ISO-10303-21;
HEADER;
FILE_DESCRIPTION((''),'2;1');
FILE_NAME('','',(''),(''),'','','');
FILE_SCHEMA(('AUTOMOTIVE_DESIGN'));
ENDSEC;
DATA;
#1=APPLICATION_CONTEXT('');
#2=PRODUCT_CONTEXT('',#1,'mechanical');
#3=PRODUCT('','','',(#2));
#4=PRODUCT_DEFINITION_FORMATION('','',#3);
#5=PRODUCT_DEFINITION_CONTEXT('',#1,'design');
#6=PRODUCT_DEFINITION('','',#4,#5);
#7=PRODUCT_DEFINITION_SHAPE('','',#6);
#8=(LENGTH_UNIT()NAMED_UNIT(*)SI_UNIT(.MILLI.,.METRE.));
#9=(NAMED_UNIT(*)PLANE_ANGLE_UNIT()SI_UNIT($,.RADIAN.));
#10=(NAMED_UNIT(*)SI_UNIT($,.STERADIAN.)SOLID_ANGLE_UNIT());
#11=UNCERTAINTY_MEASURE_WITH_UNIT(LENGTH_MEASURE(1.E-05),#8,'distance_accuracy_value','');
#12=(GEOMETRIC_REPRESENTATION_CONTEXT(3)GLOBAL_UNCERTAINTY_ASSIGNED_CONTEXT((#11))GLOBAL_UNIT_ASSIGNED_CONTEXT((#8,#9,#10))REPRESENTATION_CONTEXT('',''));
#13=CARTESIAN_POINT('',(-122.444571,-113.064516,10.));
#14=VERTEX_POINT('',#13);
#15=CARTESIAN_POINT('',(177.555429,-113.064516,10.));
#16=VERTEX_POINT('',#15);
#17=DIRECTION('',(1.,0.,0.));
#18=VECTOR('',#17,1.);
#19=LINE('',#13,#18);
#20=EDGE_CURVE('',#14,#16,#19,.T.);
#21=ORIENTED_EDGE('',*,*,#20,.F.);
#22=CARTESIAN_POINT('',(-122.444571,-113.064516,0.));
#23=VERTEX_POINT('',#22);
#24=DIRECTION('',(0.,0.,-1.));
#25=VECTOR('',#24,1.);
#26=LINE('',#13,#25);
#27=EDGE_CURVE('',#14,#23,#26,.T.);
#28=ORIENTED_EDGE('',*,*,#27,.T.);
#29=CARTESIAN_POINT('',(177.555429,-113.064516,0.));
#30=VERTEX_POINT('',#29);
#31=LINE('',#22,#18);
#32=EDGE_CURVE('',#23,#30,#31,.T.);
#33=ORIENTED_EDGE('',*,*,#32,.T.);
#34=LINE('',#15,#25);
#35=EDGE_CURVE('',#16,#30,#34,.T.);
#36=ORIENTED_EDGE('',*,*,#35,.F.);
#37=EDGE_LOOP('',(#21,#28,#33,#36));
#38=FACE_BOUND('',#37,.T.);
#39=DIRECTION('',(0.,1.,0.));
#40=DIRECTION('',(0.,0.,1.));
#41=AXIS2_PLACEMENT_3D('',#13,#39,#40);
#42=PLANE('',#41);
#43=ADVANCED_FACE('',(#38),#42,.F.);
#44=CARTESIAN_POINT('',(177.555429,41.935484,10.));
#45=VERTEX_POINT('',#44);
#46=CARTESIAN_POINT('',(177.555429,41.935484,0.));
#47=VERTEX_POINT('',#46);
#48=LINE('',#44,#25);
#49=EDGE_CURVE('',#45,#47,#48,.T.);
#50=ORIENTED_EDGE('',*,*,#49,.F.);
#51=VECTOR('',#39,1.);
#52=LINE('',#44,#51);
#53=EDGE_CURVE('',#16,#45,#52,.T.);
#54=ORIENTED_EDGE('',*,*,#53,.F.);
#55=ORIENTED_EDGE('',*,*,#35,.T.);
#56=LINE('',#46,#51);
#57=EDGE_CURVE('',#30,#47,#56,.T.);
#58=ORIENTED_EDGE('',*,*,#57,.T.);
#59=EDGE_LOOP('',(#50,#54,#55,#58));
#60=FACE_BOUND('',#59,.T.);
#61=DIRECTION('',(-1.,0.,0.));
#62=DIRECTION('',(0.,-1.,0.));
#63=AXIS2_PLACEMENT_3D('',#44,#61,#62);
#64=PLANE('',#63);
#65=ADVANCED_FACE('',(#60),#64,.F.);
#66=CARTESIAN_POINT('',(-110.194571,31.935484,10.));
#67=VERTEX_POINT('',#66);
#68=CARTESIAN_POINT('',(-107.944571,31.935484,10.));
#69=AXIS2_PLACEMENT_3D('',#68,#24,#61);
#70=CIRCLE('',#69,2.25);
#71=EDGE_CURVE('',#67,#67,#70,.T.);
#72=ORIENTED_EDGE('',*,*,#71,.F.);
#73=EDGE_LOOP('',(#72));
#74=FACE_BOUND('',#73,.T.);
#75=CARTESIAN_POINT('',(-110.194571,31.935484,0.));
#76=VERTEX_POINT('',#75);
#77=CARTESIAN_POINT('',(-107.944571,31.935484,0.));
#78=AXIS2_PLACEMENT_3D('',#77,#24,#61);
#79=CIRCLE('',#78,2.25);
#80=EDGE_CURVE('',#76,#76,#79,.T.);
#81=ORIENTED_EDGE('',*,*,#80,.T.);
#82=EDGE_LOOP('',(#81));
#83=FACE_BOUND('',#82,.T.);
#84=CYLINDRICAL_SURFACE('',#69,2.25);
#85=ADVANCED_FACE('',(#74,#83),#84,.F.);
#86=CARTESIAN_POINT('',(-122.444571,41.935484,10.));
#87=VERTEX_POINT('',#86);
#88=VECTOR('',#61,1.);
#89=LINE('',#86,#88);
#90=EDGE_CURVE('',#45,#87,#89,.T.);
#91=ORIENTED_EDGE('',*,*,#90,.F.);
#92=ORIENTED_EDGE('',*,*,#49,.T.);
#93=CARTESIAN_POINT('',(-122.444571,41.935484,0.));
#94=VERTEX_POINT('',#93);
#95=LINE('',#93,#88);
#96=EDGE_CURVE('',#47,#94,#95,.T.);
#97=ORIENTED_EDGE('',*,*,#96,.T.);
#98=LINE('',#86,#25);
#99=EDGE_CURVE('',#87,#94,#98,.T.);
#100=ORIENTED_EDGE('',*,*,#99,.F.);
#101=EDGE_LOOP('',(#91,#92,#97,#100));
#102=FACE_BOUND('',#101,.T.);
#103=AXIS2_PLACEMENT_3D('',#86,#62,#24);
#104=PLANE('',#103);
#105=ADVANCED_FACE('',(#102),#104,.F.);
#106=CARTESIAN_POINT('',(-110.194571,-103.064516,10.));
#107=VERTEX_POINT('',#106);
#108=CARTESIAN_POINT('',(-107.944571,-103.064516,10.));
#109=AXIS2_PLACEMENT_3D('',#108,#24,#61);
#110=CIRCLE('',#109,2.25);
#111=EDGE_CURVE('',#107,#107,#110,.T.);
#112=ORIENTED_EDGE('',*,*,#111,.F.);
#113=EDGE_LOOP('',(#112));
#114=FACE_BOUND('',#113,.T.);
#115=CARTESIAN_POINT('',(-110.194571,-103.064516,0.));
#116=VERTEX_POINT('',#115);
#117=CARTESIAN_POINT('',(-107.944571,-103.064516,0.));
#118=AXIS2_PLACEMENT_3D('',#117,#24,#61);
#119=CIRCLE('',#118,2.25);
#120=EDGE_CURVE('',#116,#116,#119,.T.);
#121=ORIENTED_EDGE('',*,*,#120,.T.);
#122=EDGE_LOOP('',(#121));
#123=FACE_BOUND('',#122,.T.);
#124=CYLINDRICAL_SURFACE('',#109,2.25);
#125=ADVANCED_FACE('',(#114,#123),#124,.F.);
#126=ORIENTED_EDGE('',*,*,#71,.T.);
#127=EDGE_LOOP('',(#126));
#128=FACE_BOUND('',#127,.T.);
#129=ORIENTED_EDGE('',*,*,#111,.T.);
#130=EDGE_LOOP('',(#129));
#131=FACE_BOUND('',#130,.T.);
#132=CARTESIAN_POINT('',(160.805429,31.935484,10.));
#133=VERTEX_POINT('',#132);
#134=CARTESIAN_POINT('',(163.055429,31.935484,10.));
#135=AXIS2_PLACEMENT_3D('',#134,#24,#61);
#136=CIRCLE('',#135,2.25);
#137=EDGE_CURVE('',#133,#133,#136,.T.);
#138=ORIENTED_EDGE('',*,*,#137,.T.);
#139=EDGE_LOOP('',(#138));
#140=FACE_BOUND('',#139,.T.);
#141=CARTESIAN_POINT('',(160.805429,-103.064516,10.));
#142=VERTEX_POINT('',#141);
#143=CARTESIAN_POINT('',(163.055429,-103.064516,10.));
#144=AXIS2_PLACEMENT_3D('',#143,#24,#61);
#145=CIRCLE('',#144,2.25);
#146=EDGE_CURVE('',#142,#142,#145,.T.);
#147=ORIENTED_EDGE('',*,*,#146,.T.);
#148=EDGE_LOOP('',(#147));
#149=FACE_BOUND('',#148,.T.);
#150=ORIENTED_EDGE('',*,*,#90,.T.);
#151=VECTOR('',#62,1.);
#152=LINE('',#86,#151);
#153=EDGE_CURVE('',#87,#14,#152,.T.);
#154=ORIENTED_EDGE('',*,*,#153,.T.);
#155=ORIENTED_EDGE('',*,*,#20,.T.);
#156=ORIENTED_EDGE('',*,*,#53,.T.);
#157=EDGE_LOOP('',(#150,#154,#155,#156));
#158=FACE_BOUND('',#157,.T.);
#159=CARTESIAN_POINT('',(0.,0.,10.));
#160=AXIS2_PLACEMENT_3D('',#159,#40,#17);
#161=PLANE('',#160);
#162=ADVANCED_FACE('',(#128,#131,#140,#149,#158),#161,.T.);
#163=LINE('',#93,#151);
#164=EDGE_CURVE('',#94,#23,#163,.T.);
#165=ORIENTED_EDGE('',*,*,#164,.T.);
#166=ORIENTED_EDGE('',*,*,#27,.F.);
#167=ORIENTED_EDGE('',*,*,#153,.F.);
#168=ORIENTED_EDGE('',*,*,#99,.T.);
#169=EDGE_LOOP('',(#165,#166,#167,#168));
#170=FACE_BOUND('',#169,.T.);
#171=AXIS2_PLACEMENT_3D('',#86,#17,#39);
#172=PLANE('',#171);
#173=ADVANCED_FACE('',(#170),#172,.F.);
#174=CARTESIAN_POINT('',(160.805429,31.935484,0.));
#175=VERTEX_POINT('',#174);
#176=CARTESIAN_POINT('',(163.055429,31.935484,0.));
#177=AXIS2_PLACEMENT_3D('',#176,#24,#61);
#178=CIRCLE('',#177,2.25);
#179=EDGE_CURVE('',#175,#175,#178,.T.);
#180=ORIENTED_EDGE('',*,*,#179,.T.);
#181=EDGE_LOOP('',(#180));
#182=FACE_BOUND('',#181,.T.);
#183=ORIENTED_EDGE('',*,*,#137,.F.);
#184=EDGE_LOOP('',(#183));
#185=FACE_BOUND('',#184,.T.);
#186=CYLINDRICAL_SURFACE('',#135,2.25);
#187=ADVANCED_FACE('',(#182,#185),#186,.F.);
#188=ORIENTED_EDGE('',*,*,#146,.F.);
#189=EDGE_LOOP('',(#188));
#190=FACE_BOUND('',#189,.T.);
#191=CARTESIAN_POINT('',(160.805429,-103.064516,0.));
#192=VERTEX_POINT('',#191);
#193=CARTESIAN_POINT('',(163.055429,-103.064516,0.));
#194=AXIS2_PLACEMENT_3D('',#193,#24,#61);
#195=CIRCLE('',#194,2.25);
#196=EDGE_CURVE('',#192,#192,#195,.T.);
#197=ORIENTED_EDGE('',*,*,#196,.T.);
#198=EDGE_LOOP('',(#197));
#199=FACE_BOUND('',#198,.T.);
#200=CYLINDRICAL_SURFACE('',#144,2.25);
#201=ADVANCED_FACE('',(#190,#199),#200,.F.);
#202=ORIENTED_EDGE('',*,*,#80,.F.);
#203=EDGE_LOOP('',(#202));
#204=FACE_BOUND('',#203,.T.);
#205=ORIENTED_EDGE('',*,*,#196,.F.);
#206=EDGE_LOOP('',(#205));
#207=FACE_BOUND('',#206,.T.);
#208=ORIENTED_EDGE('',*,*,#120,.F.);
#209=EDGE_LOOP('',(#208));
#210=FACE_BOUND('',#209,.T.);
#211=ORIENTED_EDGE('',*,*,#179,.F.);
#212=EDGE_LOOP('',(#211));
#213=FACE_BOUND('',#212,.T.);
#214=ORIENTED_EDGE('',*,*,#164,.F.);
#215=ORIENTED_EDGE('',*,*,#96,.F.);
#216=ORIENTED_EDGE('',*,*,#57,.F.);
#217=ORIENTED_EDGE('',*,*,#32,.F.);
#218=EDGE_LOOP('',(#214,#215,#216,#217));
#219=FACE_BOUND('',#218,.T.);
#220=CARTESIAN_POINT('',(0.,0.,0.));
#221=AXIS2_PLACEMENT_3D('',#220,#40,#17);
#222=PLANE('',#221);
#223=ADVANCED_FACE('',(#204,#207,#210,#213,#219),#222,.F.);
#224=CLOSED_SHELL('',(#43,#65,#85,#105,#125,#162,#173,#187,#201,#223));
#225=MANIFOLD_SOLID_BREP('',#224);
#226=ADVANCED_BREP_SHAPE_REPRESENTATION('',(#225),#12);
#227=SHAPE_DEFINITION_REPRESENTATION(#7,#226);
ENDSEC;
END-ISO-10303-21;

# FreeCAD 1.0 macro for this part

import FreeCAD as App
import Part
import Sketcher


def add_polygon(sketch, points):
    """Adds a closed chain of lines whose ends are joined by coincident constraints."""
    first, n = sketch.GeometryCount, len(points)
    for a, b in zip(points, points[1:] + points[:1]):
        sketch.addGeometry(Part.LineSegment(App.Vector(*a, 0), App.Vector(*b, 0)), False)
    for i in range(n):
        sketch.addConstraint(Sketcher.Constraint("Coincident", first + i, 2, first + (i + 1) % n, 1))

doc = App.newDocument("Part")
params = doc.addObject("Spreadsheet::Sheet", "Params")
for row, (alias, value) in enumerate([
    ("sketch1_width", "300 mm"),
    ("sketch1_height", "155 mm"),
    ("pad1_length", "10 mm"),
    ("sketch2_diameter", "4.5 mm"),
    ("pocket1_length", "10 mm"),
], start=1):
    params.set(f"A{row}", alias)
    params.set(f"B{row}", "=" + value)
    params.setAlias(f"B{row}", alias)

body = doc.addObject("PartDesign::Body", "Body")

# Sketch on XY plane
sketch1 = body.newObject("Sketcher::SketchObject", "Sketch")
sketch1.AttachmentSupport = (doc.getObject("XY_Plane"), [""])
sketch1.MapMode = "FlatFace"
add_polygon(sketch1, [(-122.444571, 41.935484), (-122.444571, -113.064516), (177.555429, -113.064516), (177.555429, 41.935484)])  # lines 0-3
sketch1.addConstraint([
    Sketcher.Constraint("Vertical", 0),
    Sketcher.Constraint("Horizontal", 1),
    Sketcher.Constraint("Vertical", 2),
    Sketcher.Constraint("Horizontal", 3),
    Sketcher.Constraint("DistanceX", 1, 1, 1, 2, 300.0),
    Sketcher.Constraint("DistanceY", 0, 2, 0, 1, 155.0),
    Sketcher.Constraint("DistanceX", 0, 2, -1, 1, 122.444571),
    Sketcher.Constraint("DistanceY", 0, 2, -1, 1, 113.064516),
])
sketch1.setExpression("Constraints[8]", "Params.sketch1_width")
sketch1.setExpression("Constraints[9]", "Params.sketch1_height")
pad1 = body.newObject("PartDesign::Pad", "Pad")
pad1.Profile = sketch1
pad1.setExpression("Length", "Params.pad1_length")

# Sketch on XY plane
sketch2 = body.newObject("Sketcher::SketchObject", "Sketch001")
sketch2.AttachmentSupport = (doc.getObject("XY_Plane"), [""])
sketch2.MapMode = "FlatFace"
sketch2.addGeometry([
    Part.Circle(App.Vector(163.055429, -103.064516, 0), App.Vector(0, 0, 1), 2.25),
    Part.Circle(App.Vector(163.055429, 31.935484, 0), App.Vector(0, 0, 1), 2.25),
    Part.Circle(App.Vector(-107.944571, 31.935484, 0), App.Vector(0, 0, 1), 2.25),
    Part.Circle(App.Vector(-107.944571, -103.064516, 0), App.Vector(0, 0, 1), 2.25),
], False)
sketch2.addConstraint([
    Sketcher.Constraint("Equal", 0, 1),
    Sketcher.Constraint("Equal", 1, 2),
    Sketcher.Constraint("Equal", 2, 3),
    Sketcher.Constraint("Horizontal", 1, 3, 2, 3),
    Sketcher.Constraint("Horizontal", 0, 3, 3, 3),
    Sketcher.Constraint("Vertical", 0, 3, 1, 3),
    Sketcher.Constraint("Vertical", 2, 3, 3, 3),
    Sketcher.Constraint("Diameter", 0, 4.5),
    Sketcher.Constraint("DistanceY", 0, 3, 1, 3, 135.0),
    Sketcher.Constraint("DistanceX", 2, 3, 1, 3, 271.0),
    Sketcher.Constraint("DistanceX", -1, 1, 0, 3, 163.055429),
    Sketcher.Constraint("DistanceY", 0, 3, -1, 1, 103.064516),
])
sketch2.setExpression("Constraints[7]", "Params.sketch2_diameter")
pocket1 = body.newObject("PartDesign::Pocket", "Pocket")
pocket1.Profile = sketch2
pocket1.setExpression("Length", "Params.pocket1_length")
pocket1.Reversed = True

doc.recompute()
